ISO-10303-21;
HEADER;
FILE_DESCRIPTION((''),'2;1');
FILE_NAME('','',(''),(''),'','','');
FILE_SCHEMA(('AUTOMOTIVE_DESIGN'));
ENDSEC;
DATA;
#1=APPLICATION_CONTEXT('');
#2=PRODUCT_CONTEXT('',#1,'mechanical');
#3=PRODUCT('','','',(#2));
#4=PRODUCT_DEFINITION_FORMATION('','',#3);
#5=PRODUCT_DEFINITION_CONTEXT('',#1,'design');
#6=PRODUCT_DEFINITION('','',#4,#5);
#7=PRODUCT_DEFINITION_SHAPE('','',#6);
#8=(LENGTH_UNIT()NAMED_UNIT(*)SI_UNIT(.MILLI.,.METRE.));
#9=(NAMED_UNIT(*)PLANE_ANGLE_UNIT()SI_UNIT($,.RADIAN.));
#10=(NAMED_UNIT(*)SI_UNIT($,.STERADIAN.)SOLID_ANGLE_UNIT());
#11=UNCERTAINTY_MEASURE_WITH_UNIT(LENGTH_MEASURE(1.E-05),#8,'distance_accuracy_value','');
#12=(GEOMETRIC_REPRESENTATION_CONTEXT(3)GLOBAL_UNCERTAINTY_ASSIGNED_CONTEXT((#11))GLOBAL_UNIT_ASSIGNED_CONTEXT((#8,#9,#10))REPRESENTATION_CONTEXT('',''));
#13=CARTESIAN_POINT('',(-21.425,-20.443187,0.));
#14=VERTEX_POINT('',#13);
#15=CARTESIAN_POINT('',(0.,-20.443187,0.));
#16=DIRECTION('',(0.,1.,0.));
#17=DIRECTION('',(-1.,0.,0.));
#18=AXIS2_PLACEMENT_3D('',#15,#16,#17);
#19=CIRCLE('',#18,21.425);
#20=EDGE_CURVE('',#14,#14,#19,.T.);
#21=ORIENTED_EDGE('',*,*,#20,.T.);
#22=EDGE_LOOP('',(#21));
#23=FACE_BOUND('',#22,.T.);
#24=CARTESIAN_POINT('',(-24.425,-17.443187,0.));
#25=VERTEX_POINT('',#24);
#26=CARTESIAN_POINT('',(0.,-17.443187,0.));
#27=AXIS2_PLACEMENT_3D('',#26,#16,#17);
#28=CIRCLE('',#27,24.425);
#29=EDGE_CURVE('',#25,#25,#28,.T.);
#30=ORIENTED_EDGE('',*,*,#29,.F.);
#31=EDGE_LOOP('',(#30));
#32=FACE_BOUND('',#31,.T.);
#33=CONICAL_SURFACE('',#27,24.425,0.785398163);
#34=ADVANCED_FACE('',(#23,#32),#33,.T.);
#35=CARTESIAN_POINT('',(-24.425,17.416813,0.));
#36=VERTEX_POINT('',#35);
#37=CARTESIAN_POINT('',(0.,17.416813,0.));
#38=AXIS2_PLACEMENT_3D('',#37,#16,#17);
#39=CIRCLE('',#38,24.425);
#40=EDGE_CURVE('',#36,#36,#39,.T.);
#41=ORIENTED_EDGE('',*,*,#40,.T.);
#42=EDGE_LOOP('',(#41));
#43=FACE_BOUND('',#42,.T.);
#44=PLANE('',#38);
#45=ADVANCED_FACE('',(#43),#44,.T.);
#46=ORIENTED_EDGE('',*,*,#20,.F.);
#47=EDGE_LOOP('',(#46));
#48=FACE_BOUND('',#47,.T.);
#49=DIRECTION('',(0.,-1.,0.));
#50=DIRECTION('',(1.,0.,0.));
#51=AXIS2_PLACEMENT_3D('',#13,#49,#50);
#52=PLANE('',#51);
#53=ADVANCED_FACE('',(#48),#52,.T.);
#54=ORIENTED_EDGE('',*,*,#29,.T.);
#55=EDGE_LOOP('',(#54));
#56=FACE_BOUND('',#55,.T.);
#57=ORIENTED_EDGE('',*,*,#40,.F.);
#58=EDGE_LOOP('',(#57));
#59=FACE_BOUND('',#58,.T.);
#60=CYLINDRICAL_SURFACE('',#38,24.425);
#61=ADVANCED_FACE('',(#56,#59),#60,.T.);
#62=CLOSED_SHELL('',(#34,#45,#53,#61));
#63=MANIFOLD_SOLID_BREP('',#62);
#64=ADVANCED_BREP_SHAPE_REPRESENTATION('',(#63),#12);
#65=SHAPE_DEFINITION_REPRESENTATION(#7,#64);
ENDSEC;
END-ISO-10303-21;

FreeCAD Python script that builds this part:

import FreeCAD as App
import Part
import Sketcher
from FreeCAD import Vector
Q = App.Units.Quantity


def add_polygon(sketch, points):
    """Adds a closed chain of lines whose ends are joined by coincident constraints."""
    first, n = sketch.GeometryCount, len(points)
    for a, b in zip(points, points[1:] + points[:1]):
        sketch.addGeometry(Part.LineSegment(App.Vector(*a, 0), App.Vector(*b, 0)), False)
    for i in range(n):
        sketch.addConstraint(Sketcher.Constraint("Coincident", first + i, 2, first + (i + 1) % n, 1))

doc = App.newDocument("Part")
params = doc.addObject("Spreadsheet::Sheet", "Params")
for row, (alias, value) in enumerate([
    ("sketch1_height", "34.86 mm"),
    ("revolution_angle", "360 deg"),
], start=1):
    params.set(f"A{row}", alias)
    params.set(f"B{row}", "=" + value)
    params.setAlias(f"B{row}", alias)

body = doc.addObject("PartDesign::Body", "Body")

sketch1 = doc.addObject("Sketcher::SketchObject", "Sketch")
body.addObject(sketch1)
sketch1.AttachmentSupport = (doc.XY_Plane, [""])
sketch1.MapMode = "FlatFace"
add_polygon(sketch1, [(0, 17.4), (-24.4, 17.4), (-24.4, -17.4), (-21.4, -20.4), (0, -20.4)])
sketch1.addConstraint(Sketcher.Constraint("Horizontal", 0))
sketch1.addConstraint(Sketcher.Constraint("Vertical", 1))
sketch1.addConstraint(Sketcher.Constraint("Horizontal", 3))
sketch1.addConstraint(Sketcher.Constraint("Vertical", 4))
sketch1.addConstraint(Sketcher.Constraint("PointOnObject", 3, 2, -2))
sketch1.addConstraint(Sketcher.Constraint("Angle", 2, Q("-45 deg")))
sketch1.addConstraint(Sketcher.Constraint("DistanceX", 1, 2, 2, 2, 3.0))
sketch1.addConstraint(Sketcher.Constraint("DistanceY", 1, 2, 1, 1, 34.86))
sketch1.addConstraint(Sketcher.Constraint("DistanceX", 0, 2, 0, 1, 24.425))
sketch1.addConstraint(Sketcher.Constraint("DistanceY", -1, 1, 0, 2, 17.416813))
sketch1.setExpression("Constraints[12]", "Params.sketch1_height")
revolution = doc.addObject("PartDesign::Revolution", "Revolution")
body.addObject(revolution)
revolution.Profile = sketch1
revolution.ReferenceAxis = (sketch1, ["V_Axis"])
revolution.setExpression("Angle", "Params.revolution_angle")

doc.recompute()
